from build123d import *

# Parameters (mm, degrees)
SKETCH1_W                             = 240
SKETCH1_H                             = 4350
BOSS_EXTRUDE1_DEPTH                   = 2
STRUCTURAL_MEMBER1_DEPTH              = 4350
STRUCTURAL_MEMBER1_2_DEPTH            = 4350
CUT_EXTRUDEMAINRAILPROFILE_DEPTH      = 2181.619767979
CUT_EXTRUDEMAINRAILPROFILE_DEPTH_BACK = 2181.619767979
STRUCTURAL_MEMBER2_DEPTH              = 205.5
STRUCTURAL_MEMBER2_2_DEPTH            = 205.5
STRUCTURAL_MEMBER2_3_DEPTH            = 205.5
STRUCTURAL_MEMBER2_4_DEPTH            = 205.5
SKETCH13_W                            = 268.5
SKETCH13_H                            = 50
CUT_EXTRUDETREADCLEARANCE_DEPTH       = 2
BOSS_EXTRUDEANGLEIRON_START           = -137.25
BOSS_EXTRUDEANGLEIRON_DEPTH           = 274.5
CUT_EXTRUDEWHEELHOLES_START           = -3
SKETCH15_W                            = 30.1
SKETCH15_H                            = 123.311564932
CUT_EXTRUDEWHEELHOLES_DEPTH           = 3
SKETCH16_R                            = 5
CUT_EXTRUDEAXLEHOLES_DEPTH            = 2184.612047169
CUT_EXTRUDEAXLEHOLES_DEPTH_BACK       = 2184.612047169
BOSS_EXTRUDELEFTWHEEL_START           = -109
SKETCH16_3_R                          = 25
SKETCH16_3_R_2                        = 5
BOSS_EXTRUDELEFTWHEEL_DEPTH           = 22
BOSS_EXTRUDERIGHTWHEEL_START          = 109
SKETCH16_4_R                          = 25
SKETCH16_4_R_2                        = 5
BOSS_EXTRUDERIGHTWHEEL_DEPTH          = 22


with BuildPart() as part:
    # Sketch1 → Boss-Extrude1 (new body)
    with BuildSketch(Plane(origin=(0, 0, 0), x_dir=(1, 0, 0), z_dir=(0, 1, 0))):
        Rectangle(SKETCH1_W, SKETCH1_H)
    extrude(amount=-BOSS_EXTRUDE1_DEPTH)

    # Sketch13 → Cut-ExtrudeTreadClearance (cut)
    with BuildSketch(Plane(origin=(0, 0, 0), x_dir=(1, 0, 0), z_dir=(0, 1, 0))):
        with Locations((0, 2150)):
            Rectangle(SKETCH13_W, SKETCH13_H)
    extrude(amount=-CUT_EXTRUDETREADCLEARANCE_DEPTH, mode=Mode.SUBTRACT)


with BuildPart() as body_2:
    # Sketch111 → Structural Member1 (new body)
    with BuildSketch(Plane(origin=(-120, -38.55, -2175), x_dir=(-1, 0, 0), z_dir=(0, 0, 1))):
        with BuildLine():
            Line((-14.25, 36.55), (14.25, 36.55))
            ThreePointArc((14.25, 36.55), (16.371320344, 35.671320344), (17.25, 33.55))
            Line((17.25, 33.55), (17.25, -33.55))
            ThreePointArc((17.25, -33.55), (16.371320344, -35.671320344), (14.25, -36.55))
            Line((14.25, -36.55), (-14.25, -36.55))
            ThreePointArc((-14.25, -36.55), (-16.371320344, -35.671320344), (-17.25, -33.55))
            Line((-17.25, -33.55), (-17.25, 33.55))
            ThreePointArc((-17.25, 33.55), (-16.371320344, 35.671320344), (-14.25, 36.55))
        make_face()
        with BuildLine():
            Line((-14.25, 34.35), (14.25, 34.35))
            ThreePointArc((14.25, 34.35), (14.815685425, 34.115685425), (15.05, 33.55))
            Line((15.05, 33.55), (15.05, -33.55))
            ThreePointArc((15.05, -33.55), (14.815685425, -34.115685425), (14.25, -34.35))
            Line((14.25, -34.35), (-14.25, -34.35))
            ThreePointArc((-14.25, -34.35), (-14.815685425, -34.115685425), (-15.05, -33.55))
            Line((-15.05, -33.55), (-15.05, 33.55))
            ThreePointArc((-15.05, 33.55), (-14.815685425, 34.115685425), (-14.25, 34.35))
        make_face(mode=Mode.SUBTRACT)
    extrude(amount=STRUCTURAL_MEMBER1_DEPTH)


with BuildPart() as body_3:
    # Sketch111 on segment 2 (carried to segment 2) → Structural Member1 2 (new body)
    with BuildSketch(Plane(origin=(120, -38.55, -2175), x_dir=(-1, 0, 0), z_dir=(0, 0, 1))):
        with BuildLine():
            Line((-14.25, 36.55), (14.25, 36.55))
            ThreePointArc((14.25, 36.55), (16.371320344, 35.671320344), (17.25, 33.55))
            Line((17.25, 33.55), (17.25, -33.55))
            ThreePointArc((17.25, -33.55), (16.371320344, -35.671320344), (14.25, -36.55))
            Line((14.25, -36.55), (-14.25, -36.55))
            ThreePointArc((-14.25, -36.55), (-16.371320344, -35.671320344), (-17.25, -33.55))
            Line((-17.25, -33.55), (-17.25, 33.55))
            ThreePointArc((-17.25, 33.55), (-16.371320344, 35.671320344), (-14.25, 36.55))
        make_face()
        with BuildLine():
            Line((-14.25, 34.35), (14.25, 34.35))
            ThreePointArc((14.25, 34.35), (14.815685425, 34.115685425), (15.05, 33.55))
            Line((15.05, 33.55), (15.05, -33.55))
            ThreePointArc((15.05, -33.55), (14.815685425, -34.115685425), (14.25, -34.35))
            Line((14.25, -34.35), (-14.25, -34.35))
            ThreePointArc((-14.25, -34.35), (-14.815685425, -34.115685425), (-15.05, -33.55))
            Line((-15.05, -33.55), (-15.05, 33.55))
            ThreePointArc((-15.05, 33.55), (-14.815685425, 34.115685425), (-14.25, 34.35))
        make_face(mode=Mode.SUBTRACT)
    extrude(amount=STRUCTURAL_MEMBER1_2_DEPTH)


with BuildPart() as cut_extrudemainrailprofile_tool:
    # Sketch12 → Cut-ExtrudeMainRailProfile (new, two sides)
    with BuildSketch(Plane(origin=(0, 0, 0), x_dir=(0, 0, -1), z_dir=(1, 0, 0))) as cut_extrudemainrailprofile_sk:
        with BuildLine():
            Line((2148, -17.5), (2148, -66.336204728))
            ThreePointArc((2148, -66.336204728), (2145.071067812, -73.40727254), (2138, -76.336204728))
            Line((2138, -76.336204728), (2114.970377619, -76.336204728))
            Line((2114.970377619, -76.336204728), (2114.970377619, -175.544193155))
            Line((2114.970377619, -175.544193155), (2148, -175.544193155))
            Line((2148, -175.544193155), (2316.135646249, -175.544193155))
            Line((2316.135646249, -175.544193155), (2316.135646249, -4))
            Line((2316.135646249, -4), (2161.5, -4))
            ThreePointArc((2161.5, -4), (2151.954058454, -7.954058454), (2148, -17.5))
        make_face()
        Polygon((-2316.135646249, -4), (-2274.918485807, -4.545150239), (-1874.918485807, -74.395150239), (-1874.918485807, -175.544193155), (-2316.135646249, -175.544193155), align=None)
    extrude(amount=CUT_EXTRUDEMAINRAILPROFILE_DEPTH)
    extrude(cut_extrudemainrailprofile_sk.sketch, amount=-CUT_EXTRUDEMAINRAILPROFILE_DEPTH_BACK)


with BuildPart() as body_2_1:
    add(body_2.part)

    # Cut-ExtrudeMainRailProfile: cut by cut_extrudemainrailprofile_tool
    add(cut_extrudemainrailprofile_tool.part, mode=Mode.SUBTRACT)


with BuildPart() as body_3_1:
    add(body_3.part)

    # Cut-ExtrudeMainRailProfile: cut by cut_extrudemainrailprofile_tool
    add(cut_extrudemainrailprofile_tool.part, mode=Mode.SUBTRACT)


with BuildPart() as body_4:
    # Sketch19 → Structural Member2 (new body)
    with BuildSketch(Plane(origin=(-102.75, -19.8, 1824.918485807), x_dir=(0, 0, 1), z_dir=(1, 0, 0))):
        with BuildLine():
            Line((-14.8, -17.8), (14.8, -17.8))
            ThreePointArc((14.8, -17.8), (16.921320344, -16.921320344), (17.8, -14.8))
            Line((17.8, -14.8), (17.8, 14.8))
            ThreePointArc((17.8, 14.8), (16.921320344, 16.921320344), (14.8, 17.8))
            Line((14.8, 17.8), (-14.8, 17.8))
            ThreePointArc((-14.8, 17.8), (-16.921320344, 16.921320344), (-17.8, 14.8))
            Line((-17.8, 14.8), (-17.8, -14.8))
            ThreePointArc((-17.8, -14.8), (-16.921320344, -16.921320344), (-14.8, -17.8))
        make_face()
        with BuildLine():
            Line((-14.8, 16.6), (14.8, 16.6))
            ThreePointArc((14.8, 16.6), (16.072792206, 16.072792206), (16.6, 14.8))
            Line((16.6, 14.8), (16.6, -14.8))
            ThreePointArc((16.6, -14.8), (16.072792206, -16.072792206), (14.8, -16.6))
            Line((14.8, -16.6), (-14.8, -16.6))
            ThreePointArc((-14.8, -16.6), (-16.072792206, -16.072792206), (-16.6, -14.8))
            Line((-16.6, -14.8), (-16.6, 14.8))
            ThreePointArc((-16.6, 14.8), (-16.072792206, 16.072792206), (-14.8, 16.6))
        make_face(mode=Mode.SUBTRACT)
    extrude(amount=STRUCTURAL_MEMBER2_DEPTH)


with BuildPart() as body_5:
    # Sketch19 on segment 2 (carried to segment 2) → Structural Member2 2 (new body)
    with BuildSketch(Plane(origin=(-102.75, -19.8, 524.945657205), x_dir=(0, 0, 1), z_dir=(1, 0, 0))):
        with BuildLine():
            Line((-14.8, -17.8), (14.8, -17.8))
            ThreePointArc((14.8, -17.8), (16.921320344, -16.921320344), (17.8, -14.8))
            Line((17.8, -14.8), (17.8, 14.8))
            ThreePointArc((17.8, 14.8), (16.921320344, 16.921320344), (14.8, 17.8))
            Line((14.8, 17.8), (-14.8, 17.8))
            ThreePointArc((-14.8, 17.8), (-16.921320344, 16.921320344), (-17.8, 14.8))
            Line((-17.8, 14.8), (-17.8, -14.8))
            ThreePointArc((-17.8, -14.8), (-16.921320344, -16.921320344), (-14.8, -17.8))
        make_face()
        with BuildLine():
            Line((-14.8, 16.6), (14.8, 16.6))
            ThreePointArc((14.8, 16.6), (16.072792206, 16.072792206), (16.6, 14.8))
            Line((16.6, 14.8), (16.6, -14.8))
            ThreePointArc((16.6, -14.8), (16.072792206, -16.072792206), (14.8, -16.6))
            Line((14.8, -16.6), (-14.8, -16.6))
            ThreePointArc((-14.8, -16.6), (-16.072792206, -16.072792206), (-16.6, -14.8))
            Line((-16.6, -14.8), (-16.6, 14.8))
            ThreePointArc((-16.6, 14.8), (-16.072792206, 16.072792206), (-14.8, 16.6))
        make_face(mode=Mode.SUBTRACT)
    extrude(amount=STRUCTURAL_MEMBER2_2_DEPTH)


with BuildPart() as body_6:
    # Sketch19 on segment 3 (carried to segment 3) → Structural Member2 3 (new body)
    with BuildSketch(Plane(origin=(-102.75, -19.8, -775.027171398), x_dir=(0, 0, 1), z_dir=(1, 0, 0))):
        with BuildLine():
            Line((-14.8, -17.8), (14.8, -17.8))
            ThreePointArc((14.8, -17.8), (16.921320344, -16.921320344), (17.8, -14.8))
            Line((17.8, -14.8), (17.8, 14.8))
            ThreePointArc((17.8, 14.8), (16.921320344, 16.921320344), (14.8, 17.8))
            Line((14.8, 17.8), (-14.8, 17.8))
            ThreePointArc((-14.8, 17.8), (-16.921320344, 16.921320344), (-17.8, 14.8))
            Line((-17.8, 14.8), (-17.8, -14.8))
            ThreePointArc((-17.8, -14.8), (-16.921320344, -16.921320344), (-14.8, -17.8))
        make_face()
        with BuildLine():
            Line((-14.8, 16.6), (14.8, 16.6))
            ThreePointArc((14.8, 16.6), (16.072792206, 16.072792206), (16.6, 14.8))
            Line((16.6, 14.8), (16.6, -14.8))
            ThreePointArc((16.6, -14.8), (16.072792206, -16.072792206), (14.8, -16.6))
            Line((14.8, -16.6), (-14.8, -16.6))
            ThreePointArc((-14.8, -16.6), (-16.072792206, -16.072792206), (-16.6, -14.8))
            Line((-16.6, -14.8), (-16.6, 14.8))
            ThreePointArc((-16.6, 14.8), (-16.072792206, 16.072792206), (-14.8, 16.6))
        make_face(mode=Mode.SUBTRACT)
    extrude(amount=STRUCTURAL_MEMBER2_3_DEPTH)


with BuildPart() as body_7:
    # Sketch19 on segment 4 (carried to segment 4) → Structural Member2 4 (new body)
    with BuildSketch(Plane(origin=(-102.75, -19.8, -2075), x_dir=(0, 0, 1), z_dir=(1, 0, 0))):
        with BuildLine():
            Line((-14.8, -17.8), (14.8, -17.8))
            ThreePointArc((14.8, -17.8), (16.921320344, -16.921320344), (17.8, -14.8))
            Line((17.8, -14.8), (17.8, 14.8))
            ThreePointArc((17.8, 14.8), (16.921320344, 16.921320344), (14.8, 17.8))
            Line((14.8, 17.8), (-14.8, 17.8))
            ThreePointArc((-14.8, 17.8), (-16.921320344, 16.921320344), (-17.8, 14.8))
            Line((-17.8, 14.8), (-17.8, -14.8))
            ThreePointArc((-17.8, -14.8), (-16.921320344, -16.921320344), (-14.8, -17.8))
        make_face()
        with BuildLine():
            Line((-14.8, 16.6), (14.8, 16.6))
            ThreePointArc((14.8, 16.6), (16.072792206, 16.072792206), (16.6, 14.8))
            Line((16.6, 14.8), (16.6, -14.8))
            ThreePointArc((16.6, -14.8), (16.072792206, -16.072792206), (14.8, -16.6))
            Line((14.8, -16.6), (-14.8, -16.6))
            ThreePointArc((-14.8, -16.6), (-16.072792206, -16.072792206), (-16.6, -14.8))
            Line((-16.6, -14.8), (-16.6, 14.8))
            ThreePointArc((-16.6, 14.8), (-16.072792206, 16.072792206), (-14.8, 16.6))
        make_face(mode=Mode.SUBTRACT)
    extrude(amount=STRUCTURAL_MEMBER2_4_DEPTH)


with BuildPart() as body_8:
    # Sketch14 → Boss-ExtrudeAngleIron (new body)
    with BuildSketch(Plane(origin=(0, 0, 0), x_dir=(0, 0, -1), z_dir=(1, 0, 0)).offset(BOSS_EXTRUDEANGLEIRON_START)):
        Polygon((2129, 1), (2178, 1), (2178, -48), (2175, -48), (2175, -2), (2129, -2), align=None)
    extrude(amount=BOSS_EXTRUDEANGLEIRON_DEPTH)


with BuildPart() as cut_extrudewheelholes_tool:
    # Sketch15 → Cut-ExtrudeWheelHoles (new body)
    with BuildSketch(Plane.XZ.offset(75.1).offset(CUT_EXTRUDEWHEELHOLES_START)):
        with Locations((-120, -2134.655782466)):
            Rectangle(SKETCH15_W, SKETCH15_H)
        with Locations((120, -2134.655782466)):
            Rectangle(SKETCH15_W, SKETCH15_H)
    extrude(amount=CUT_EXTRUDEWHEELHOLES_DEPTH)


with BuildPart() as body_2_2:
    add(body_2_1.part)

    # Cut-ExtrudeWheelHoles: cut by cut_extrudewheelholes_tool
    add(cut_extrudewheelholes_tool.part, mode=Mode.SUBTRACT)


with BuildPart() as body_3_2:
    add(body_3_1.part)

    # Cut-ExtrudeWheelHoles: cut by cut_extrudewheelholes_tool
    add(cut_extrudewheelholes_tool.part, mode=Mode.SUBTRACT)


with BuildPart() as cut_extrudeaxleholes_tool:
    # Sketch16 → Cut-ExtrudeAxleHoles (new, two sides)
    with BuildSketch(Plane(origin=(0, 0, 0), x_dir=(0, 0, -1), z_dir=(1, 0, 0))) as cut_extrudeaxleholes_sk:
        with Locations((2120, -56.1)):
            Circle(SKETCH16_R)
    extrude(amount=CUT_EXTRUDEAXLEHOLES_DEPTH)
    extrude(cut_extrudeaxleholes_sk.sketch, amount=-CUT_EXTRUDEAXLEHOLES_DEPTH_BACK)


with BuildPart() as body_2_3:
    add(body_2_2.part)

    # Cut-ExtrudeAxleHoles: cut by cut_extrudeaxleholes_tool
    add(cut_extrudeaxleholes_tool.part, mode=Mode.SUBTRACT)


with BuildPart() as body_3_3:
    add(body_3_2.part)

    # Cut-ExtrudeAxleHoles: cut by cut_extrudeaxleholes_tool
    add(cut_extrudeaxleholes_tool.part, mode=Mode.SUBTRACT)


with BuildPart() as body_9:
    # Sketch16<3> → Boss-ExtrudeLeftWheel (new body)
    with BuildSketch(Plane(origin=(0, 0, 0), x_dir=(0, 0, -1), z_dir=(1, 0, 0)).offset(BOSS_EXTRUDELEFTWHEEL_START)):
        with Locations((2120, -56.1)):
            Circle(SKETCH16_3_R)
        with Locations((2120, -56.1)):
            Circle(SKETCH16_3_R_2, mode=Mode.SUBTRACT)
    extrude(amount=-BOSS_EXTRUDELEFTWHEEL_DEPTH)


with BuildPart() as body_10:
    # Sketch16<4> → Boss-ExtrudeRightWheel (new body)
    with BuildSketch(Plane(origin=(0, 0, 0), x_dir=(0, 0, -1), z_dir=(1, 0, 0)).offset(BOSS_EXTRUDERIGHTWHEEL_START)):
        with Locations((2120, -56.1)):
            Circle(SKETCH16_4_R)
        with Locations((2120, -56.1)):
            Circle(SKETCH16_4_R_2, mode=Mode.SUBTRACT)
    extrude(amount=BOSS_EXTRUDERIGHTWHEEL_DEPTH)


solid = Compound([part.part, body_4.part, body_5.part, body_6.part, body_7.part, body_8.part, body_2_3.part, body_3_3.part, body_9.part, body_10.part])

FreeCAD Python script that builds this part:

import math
import FreeCAD as App
import Part
import Sketcher

V = App.Vector

doc = App.newDocument("Part")
body = doc.addObject("PartDesign::Body", "Body")

# Sketch on XZ plane
sketch1 = body.newObject("Sketcher::SketchObject", "Sketch")
sketch1.AttachmentSupport = (doc.getObject("XZ_Plane"), [""])
sketch1.MapMode = "FlatFace"
sketch1.addGeometry([
    Part.LineSegment(V(-120, -2175, 0), V(-120, 2175, 0)),
    Part.LineSegment(V(-120, 2175, 0), V(120, 2175, 0)),
    Part.LineSegment(V(120, 2175, 0), V(120, -2175, 0)),
    Part.LineSegment(V(120, -2175, 0), V(-120, -2175, 0)),
], False)
sketch1.addConstraint([
    Sketcher.Constraint("Coincident", 0, 2, 1, 1),
    Sketcher.Constraint("Coincident", 1, 2, 2, 1),
    Sketcher.Constraint("Coincident", 2, 2, 3, 1),
    Sketcher.Constraint("Coincident", 3, 2, 0, 1),
    Sketcher.Constraint("Vertical", 0),
    Sketcher.Constraint("Horizontal", 1),
    Sketcher.Constraint("Vertical", 2),
    Sketcher.Constraint("Horizontal", 3),
    Sketcher.Constraint("Symmetric", 0, 2, 2, 2, -1, 1),
    Sketcher.Constraint("DistanceX", 1, 1, 1, 2, 240.0),
    Sketcher.Constraint("DistanceY", 0, 1, 0, 2, 4350.0),
])
pad1 = body.newObject("PartDesign::Pad", "Pad")
pad1.Profile = sketch1
pad1.Length = 2

# Sketch on XZ plane
sketch2 = body.newObject("Sketcher::SketchObject", "Sketch001")
sketch2.AttachmentSupport = (doc.getObject("XZ_Plane"), [""])
sketch2.MapMode = "FlatFace"
sketch2.addGeometry([
    Part.LineSegment(V(-134.25, -2175, 0), V(-134.25, -2125, 0)),
    Part.LineSegment(V(-134.25, -2125, 0), V(134.25, -2125, 0)),
    Part.LineSegment(V(134.25, -2125, 0), V(134.25, -2175, 0)),
    Part.LineSegment(V(134.25, -2175, 0), V(-134.25, -2175, 0)),
], False)
sketch2.addConstraint([
    Sketcher.Constraint("Coincident", 0, 2, 1, 1),
    Sketcher.Constraint("Coincident", 1, 2, 2, 1),
    Sketcher.Constraint("Coincident", 2, 2, 3, 1),
    Sketcher.Constraint("Coincident", 3, 2, 0, 1),
    Sketcher.Constraint("Vertical", 0),
    Sketcher.Constraint("Horizontal", 1),
    Sketcher.Constraint("Vertical", 2),
    Sketcher.Constraint("Horizontal", 3),
    Sketcher.Constraint("DistanceY", 0, 1, 0, 2, 50.0),
    Sketcher.Constraint("DistanceX", 1, 1, 1, 2, 268.5),
    Sketcher.Constraint("DistanceY", 0, 2, -1, 1, 2125.0),
    Sketcher.Constraint("DistanceX", 0, 2, -1, 1, 134.25),
])
pocket1 = body.newObject("PartDesign::Pocket", "Pocket")
pocket1.Profile = sketch2
pocket1.Length = 2
pocket1.Reversed = True
body2 = doc.addObject("PartDesign::Body", "Body001")

# Sketch on XY plane
sketch3 = body2.newObject("Sketcher::SketchObject", "Sketch002")
sketch3.AttachmentSupport = (doc.getObject("XY_Plane001"), [""])
sketch3.MapMode = "FlatFace"
sketch3.AttachmentOffset = App.Placement(V(0, 0, -2175), App.Rotation())
sketch3.addGeometry([
    Part.LineSegment(V(-134.25, -75.1, 0), V(-105.75, -75.1, 0)),  # 0
    Part.ArcOfCircle(Part.Circle(V(-105.75, -72.1, 0), V(0, 0, 1), 3), math.radians(-90), math.radians(0)),  # 1
    Part.LineSegment(V(-102.75, -72.1, 0), V(-102.75, -5, 0)),  # 2
    Part.ArcOfCircle(Part.Circle(V(-105.75, -5, 0), V(0, 0, 1), 3), math.radians(0), math.radians(90)),  # 3
    Part.LineSegment(V(-105.75, -2, 0), V(-134.25, -2, 0)),  # 4
    Part.ArcOfCircle(Part.Circle(V(-134.25, -5, 0), V(0, 0, 1), 3), math.radians(90), math.radians(180)),  # 5
    Part.LineSegment(V(-137.25, -5, 0), V(-137.25, -72.1, 0)),  # 6
    Part.ArcOfCircle(Part.Circle(V(-134.25, -72.1, 0), V(0, 0, 1), 3), math.radians(180), math.radians(270)),  # 7
    Part.LineSegment(V(-105.75, -72.9, 0), V(-134.25, -72.9, 0)),  # 8
    Part.ArcOfCircle(Part.Circle(V(-134.25, -72.1, 0), V(0, 0, 1), 0.8), math.radians(180), math.radians(270)),  # 9
    Part.LineSegment(V(-135.05, -72.1, 0), V(-135.05, -5, 0)),  # 10
    Part.ArcOfCircle(Part.Circle(V(-134.25, -5, 0), V(0, 0, 1), 0.8), math.radians(90), math.radians(180)),  # 11
    Part.LineSegment(V(-134.25, -4.2, 0), V(-105.75, -4.2, 0)),  # 12
    Part.ArcOfCircle(Part.Circle(V(-105.75, -5, 0), V(0, 0, 1), 0.8), math.radians(0), math.radians(90)),  # 13
    Part.LineSegment(V(-104.95, -5, 0), V(-104.95, -72.1, 0)),  # 14
    Part.ArcOfCircle(Part.Circle(V(-105.75, -72.1, 0), V(0, 0, 1), 0.8), math.radians(-90), math.radians(0)),  # 15
], False)
sketch3.addConstraint([
    Sketcher.Constraint("Tangent", 0, 2, 1, 1),
    Sketcher.Constraint("Tangent", 1, 2, 2, 1),
    Sketcher.Constraint("Tangent", 2, 2, 3, 1),
    Sketcher.Constraint("Tangent", 3, 2, 4, 1),
    Sketcher.Constraint("Tangent", 4, 2, 5, 1),
    Sketcher.Constraint("Tangent", 5, 2, 6, 1),
    Sketcher.Constraint("Tangent", 6, 2, 7, 1),
    Sketcher.Constraint("Tangent", 7, 2, 0, 1),
    Sketcher.Constraint("Tangent", 8, 2, 9, 2),
    Sketcher.Constraint("Tangent", 9, 1, 10, 1),
    Sketcher.Constraint("Tangent", 10, 2, 11, 2),
    Sketcher.Constraint("Tangent", 11, 1, 12, 1),
    Sketcher.Constraint("Tangent", 12, 2, 13, 2),
    Sketcher.Constraint("Tangent", 13, 1, 14, 1),
    Sketcher.Constraint("Tangent", 14, 2, 15, 2),
    Sketcher.Constraint("Tangent", 15, 1, 8, 1),
    Sketcher.Constraint("Horizontal", 0),
    Sketcher.Constraint("Vertical", 2),
    Sketcher.Constraint("Horizontal", 4),
    Sketcher.Constraint("Vertical", 6),
    Sketcher.Constraint("Horizontal", 8),
    Sketcher.Constraint("Vertical", 10),
    Sketcher.Constraint("Horizontal", 12),
    Sketcher.Constraint("Vertical", 14),
    Sketcher.Constraint("Coincident", 9, 3, 7, 3),
    Sketcher.Constraint("Coincident", 11, 3, 5, 3),
    Sketcher.Constraint("Coincident", 13, 3, 3, 3),
    Sketcher.Constraint("Equal", 1, 3),
    Sketcher.Constraint("Equal", 3, 5),
    Sketcher.Constraint("Equal", 5, 7),
    Sketcher.Constraint("Equal", 13, 15),
    Sketcher.Constraint("Radius", 1, 3.0),
    Sketcher.Constraint("Radius", 9, 0.8),
    Sketcher.Constraint("DistanceX", 0, 1, 0, 2, 28.5),
    Sketcher.Constraint("DistanceY", 2, 1, 2, 2, 67.1),
    Sketcher.Constraint("DistanceY", 3, 3, -1, 1, 5.0),
    Sketcher.Constraint("DistanceX", 1, 3, -1, 1, 105.75),
])
pad2 = body2.newObject("PartDesign::Pad", "Pad001")
pad2.Profile = sketch3
pad2.Length = 4350
body3 = doc.addObject("PartDesign::Body", "Body002")

# Sketch on XY plane
sketch4 = body3.newObject("Sketcher::SketchObject", "Sketch003")
sketch4.AttachmentSupport = (doc.getObject("XY_Plane002"), [""])
sketch4.MapMode = "FlatFace"
sketch4.AttachmentOffset = App.Placement(V(0, 0, -2175), App.Rotation())
sketch4.addGeometry([
    Part.LineSegment(V(105.75, -75.1, 0), V(134.25, -75.1, 0)),  # 0
    Part.ArcOfCircle(Part.Circle(V(134.25, -72.1, 0), V(0, 0, 1), 3), math.radians(-90), math.radians(0)),  # 1
    Part.LineSegment(V(137.25, -72.1, 0), V(137.25, -5, 0)),  # 2
    Part.ArcOfCircle(Part.Circle(V(134.25, -5, 0), V(0, 0, 1), 3), math.radians(0), math.radians(90)),  # 3
    Part.LineSegment(V(134.25, -2, 0), V(105.75, -2, 0)),  # 4
    Part.ArcOfCircle(Part.Circle(V(105.75, -5, 0), V(0, 0, 1), 3), math.radians(90), math.radians(180)),  # 5
    Part.LineSegment(V(102.75, -5, 0), V(102.75, -72.1, 0)),  # 6
    Part.ArcOfCircle(Part.Circle(V(105.75, -72.1, 0), V(0, 0, 1), 3), math.radians(180), math.radians(270)),  # 7
    Part.LineSegment(V(134.25, -72.9, 0), V(105.75, -72.9, 0)),  # 8
    Part.ArcOfCircle(Part.Circle(V(105.75, -72.1, 0), V(0, 0, 1), 0.8), math.radians(180), math.radians(270)),  # 9
    Part.LineSegment(V(104.95, -72.1, 0), V(104.95, -5, 0)),  # 10
    Part.ArcOfCircle(Part.Circle(V(105.75, -5, 0), V(0, 0, 1), 0.8), math.radians(90), math.radians(180)),  # 11
    Part.LineSegment(V(105.75, -4.2, 0), V(134.25, -4.2, 0)),  # 12
    Part.ArcOfCircle(Part.Circle(V(134.25, -5, 0), V(0, 0, 1), 0.8), math.radians(0), math.radians(90)),  # 13
    Part.LineSegment(V(135.05, -5, 0), V(135.05, -72.1, 0)),  # 14
    Part.ArcOfCircle(Part.Circle(V(134.25, -72.1, 0), V(0, 0, 1), 0.8), math.radians(-90), math.radians(0)),  # 15
], False)
sketch4.addConstraint([
    Sketcher.Constraint("Tangent", 0, 2, 1, 1),
    Sketcher.Constraint("Tangent", 1, 2, 2, 1),
    Sketcher.Constraint("Tangent", 2, 2, 3, 1),
    Sketcher.Constraint("Tangent", 3, 2, 4, 1),
    Sketcher.Constraint("Tangent", 4, 2, 5, 1),
    Sketcher.Constraint("Tangent", 5, 2, 6, 1),
    Sketcher.Constraint("Tangent", 6, 2, 7, 1),
    Sketcher.Constraint("Tangent", 7, 2, 0, 1),
    Sketcher.Constraint("Tangent", 8, 2, 9, 2),
    Sketcher.Constraint("Tangent", 9, 1, 10, 1),
    Sketcher.Constraint("Tangent", 10, 2, 11, 2),
    Sketcher.Constraint("Tangent", 11, 1, 12, 1),
    Sketcher.Constraint("Tangent", 12, 2, 13, 2),
    Sketcher.Constraint("Tangent", 13, 1, 14, 1),
    Sketcher.Constraint("Tangent", 14, 2, 15, 2),
    Sketcher.Constraint("Tangent", 15, 1, 8, 1),
    Sketcher.Constraint("Horizontal", 0),
    Sketcher.Constraint("Vertical", 2),
    Sketcher.Constraint("Horizontal", 4),
    Sketcher.Constraint("Vertical", 6),
    Sketcher.Constraint("Horizontal", 8),
    Sketcher.Constraint("Vertical", 10),
    Sketcher.Constraint("Horizontal", 12),
    Sketcher.Constraint("Vertical", 14),
    Sketcher.Constraint("Coincident", 9, 3, 7, 3),
    Sketcher.Constraint("Coincident", 11, 3, 5, 3),
    Sketcher.Constraint("Coincident", 13, 3, 3, 3),
    Sketcher.Constraint("Equal", 1, 3),
    Sketcher.Constraint("Equal", 3, 5),
    Sketcher.Constraint("Equal", 5, 7),
    Sketcher.Constraint("Equal", 13, 15),
    Sketcher.Constraint("Radius", 1, 3.0),
    Sketcher.Constraint("Radius", 9, 0.8),
    Sketcher.Constraint("DistanceX", 0, 1, 0, 2, 28.5),
    Sketcher.Constraint("DistanceY", 2, 1, 2, 2, 67.1),
    Sketcher.Constraint("DistanceY", 3, 3, -1, 1, 5.0),
    Sketcher.Constraint("DistanceX", -1, 1, 1, 3, 134.25),
])
pad3 = body3.newObject("PartDesign::Pad", "Pad002")
pad3.Profile = sketch4
pad3.Length = 4350
body4 = doc.addObject("PartDesign::Body", "Body003")
body4.AllowCompound = True

# Sketch on YZ plane
sketch5 = body4.newObject("Sketcher::SketchObject", "Sketch004")
sketch5.AttachmentSupport = (doc.getObject("YZ_Plane003"), [""])
sketch5.MapMode = "FlatFace"
sketch5.addGeometry([
    Part.LineSegment(V(-17.5, -2148, 0), V(-66.336205, -2148, 0)),  # 0
    Part.ArcOfCircle(Part.Circle(V(-66.336205, -2138, 0), V(0, 0, 1), 10), math.radians(180), math.radians(270)),  # 1
    Part.LineSegment(V(-76.336205, -2138, 0), V(-76.336205, -2114.970378, 0)),  # 2
    Part.LineSegment(V(-76.336205, -2114.970378, 0), V(-175.544193, -2114.970378, 0)),  # 3
    Part.LineSegment(V(-175.544193, -2114.970378, 0), V(-175.544193, -2316.135646, 0)),  # 4
    Part.LineSegment(V(-175.544193, -2316.135646, 0), V(-4, -2316.135646, 0)),  # 5
    Part.LineSegment(V(-4, -2316.135646, 0), V(-4, -2161.5, 0)),  # 6
    Part.ArcOfCircle(Part.Circle(V(-17.5, -2161.5, 0), V(0, 0, 1), 13.5), math.radians(0), math.radians(90)),  # 7
    Part.LineSegment(V(-4.54515, 2274.918486, 0), V(-4, 2316.135646, 0)),  # 8
    Part.LineSegment(V(-4, 2316.135646, 0), V(-175.544193, 2316.135646, 0)),  # 9
    Part.LineSegment(V(-175.544193, 2316.135646, 0), V(-175.544193, 1874.918486, 0)),  # 10
    Part.LineSegment(V(-175.544193, 1874.918486, 0), V(-74.39515, 1874.918486, 0)),  # 11
    Part.LineSegment(V(-74.39515, 1874.918486, 0), V(-4.54515, 2274.918486, 0)),  # 12
], False)
sketch5.addConstraint([
    Sketcher.Constraint("Tangent", 0, 2, 1, 2),
    Sketcher.Constraint("Tangent", 1, 1, 2, 1),
    Sketcher.Constraint("Coincident", 2, 2, 3, 1),
    Sketcher.Constraint("Coincident", 3, 2, 4, 1),
    Sketcher.Constraint("Coincident", 4, 2, 5, 1),
    Sketcher.Constraint("Coincident", 5, 2, 6, 1),
    Sketcher.Constraint("Tangent", 6, 2, 7, 1),
    Sketcher.Constraint("Tangent", 7, 2, 0, 1),
    Sketcher.Constraint("Coincident", 8, 2, 9, 1),
    Sketcher.Constraint("Coincident", 9, 2, 10, 1),
    Sketcher.Constraint("Coincident", 10, 2, 11, 1),
    Sketcher.Constraint("Coincident", 11, 2, 12, 1),
    Sketcher.Constraint("Coincident", 12, 2, 8, 1),
    Sketcher.Constraint("Horizontal", 0),
    Sketcher.Constraint("Vertical", 2),
    Sketcher.Constraint("Horizontal", 3),
    Sketcher.Constraint("Vertical", 4),
    Sketcher.Constraint("Horizontal", 5),
    Sketcher.Constraint("Vertical", 6),
    Sketcher.Constraint("Horizontal", 9),
    Sketcher.Constraint("Vertical", 10),
    Sketcher.Constraint("Horizontal", 11),
    Sketcher.Constraint("Symmetric", 5, 2, 8, 2, -1),
    Sketcher.Constraint("Vertical", 4, 2, 9, 2),
    Sketcher.Constraint("Radius", 1, 10.0),
    Sketcher.Constraint("Radius", 7, 13.5),
    Sketcher.Constraint("DistanceY", 1, 3, -1, 1, 2138.0),
    Sketcher.Constraint("DistanceX", 5, 2, -1, 1, 4.0),
    Sketcher.Constraint("DistanceY", 11, 2, 12, 2, 400.0),
    Sketcher.Constraint("DistanceX", 11, 2, 12, 2, 69.85),
    Sketcher.Constraint("DistanceX", 3, 2, 3, 1, 99.207988),
    Sketcher.Constraint("DistanceY", 4, 2, 4, 1, 201.165269),
    Sketcher.Constraint("DistanceY", 10, 2, 10, 1, 441.21716),
    Sketcher.Constraint("DistanceX", 0, 2, 0, 1, 48.836205),
    Sketcher.Constraint("DistanceX", 11, 1, 11, 2, 101.149043),
    Sketcher.Constraint("DistanceY", 2, 1, 2, 2, 23.029622),
])
pad4 = body4.newObject("PartDesign::Pad", "Pad003")
pad4.Profile = sketch5
pad4.Type = "TwoLengths"
pad4.Length = 2181.619768
pad4.Length2 = 2181.619768
doc.recompute()

body5 = doc.addObject("PartDesign::Body", "Body004")
body5.BaseFeature = body4
boolean = body2.newObject("PartDesign::Boolean", "Boolean")
boolean.Type = "Cut"
boolean.addObjects([body5])
doc.recompute()

boolean2 = body3.newObject("PartDesign::Boolean", "Boolean001")
boolean2.Type = "Cut"
boolean2.addObjects([body4])
body6 = doc.addObject("PartDesign::Body", "Body005")

# Sketch on YZ plane
sketch6 = body6.newObject("Sketcher::SketchObject", "Sketch005")
sketch6.AttachmentSupport = (doc.getObject("YZ_Plane005"), [""])
sketch6.MapMode = "FlatFace"
sketch6.AttachmentOffset = App.Placement(V(0, 0, -102.75), App.Rotation())
sketch6.addGeometry([
    Part.LineSegment(V(-2, 1810.118486, 0), V(-2, 1839.718486, 0)),  # 0
    Part.ArcOfCircle(Part.Circle(V(-5, 1839.718486, 0), V(0, 0, 1), 3), math.radians(0), math.radians(90)),  # 1
    Part.LineSegment(V(-5, 1842.718486, 0), V(-34.6, 1842.718486, 0)),  # 2
    Part.ArcOfCircle(Part.Circle(V(-34.6, 1839.718486, 0), V(0, 0, 1), 3), math.radians(90), math.radians(180)),  # 3
    Part.LineSegment(V(-37.6, 1839.718486, 0), V(-37.6, 1810.118486, 0)),  # 4
    Part.ArcOfCircle(Part.Circle(V(-34.6, 1810.118486, 0), V(0, 0, 1), 3), math.radians(180), math.radians(270)),  # 5
    Part.LineSegment(V(-34.6, 1807.118486, 0), V(-5, 1807.118486, 0)),  # 6
    Part.ArcOfCircle(Part.Circle(V(-5, 1810.118486, 0), V(0, 0, 1), 3), math.radians(-90), math.radians(0)),  # 7
    Part.ArcOfCircle(Part.Circle(V(-34.6, 1810.118486, 0), V(0, 0, 1), 1.8), math.radians(180), math.radians(270)),  # 8
    Part.LineSegment(V(-36.4, 1810.118486, 0), V(-36.4, 1839.718486, 0)),  # 9
    Part.ArcOfCircle(Part.Circle(V(-34.6, 1839.718486, 0), V(0, 0, 1), 1.8), math.radians(90), math.radians(180)),  # 10
    Part.LineSegment(V(-34.6, 1841.518486, 0), V(-5, 1841.518486, 0)),  # 11
    Part.ArcOfCircle(Part.Circle(V(-5, 1839.718486, 0), V(0, 0, 1), 1.8), math.radians(0), math.radians(90)),  # 12
    Part.LineSegment(V(-3.2, 1839.718486, 0), V(-3.2, 1810.118486, 0)),  # 13
    Part.ArcOfCircle(Part.Circle(V(-5, 1810.118486, 0), V(0, 0, 1), 1.8), math.radians(-90), math.radians(0)),  # 14
    Part.LineSegment(V(-5, 1808.318486, 0), V(-34.6, 1808.318486, 0)),  # 15
], False)
sketch6.addConstraint([
    Sketcher.Constraint("Tangent", 0, 2, 1, 1),
    Sketcher.Constraint("Tangent", 1, 2, 2, 1),
    Sketcher.Constraint("Tangent", 2, 2, 3, 1),
    Sketcher.Constraint("Tangent", 3, 2, 4, 1),
    Sketcher.Constraint("Tangent", 4, 2, 5, 1),
    Sketcher.Constraint("Tangent", 5, 2, 6, 1),
    Sketcher.Constraint("Tangent", 6, 2, 7, 1),
    Sketcher.Constraint("Tangent", 7, 2, 0, 1),
    Sketcher.Constraint("Tangent", 8, 1, 9, 1),
    Sketcher.Constraint("Tangent", 9, 2, 10, 2),
    Sketcher.Constraint("Tangent", 10, 1, 11, 1),
    Sketcher.Constraint("Tangent", 11, 2, 12, 2),
    Sketcher.Constraint("Tangent", 12, 1, 13, 1),
    Sketcher.Constraint("Tangent", 13, 2, 14, 2),
    Sketcher.Constraint("Tangent", 14, 1, 15, 1),
    Sketcher.Constraint("Tangent", 15, 2, 8, 2),
    Sketcher.Constraint("Vertical", 0),
    Sketcher.Constraint("Horizontal", 2),
    Sketcher.Constraint("Vertical", 4),
    Sketcher.Constraint("Horizontal", 6),
    Sketcher.Constraint("Vertical", 9),
    Sketcher.Constraint("Horizontal", 11),
    Sketcher.Constraint("Vertical", 13),
    Sketcher.Constraint("Horizontal", 15),
    Sketcher.Constraint("Coincident", 8, 3, 5, 3),
    Sketcher.Constraint("Coincident", 10, 3, 3, 3),
    Sketcher.Constraint("Coincident", 12, 3, 1, 3),
    Sketcher.Constraint("Equal", 1, 3),
    Sketcher.Constraint("Equal", 3, 5),
    Sketcher.Constraint("Equal", 5, 7),
    Sketcher.Constraint("Equal", 12, 14),
    Sketcher.Constraint("Equal", 15, 0),
    Sketcher.Constraint("Radius", 1, 3.0),
    Sketcher.Constraint("Radius", 8, 1.8),
    Sketcher.Constraint("DistanceX", 2, 2, 2, 1, 29.6),
    Sketcher.Constraint("DistanceX", 1, 3, -1, 1, 5.0),
    Sketcher.Constraint("DistanceY", -1, 1, 1, 3, 1839.718486),
])
pad5 = body6.newObject("PartDesign::Pad", "Pad004")
pad5.Profile = sketch6
pad5.Length = 205.5
body7 = doc.addObject("PartDesign::Body", "Body006")

# Sketch on YZ plane
sketch7 = body7.newObject("Sketcher::SketchObject", "Sketch006")
sketch7.AttachmentSupport = (doc.getObject("YZ_Plane006"), [""])
sketch7.MapMode = "FlatFace"
sketch7.AttachmentOffset = App.Placement(V(0, 0, -102.75), App.Rotation())
sketch7.addGeometry([
    Part.LineSegment(V(-2, 510.145657, 0), V(-2, 539.745657, 0)),  # 0
    Part.ArcOfCircle(Part.Circle(V(-5, 539.745657, 0), V(0, 0, 1), 3), math.radians(0), math.radians(90)),  # 1
    Part.LineSegment(V(-5, 542.745657, 0), V(-34.6, 542.745657, 0)),  # 2
    Part.ArcOfCircle(Part.Circle(V(-34.6, 539.745657, 0), V(0, 0, 1), 3), math.radians(90), math.radians(180)),  # 3
    Part.LineSegment(V(-37.6, 539.745657, 0), V(-37.6, 510.145657, 0)),  # 4
    Part.ArcOfCircle(Part.Circle(V(-34.6, 510.145657, 0), V(0, 0, 1), 3), math.radians(180), math.radians(270)),  # 5
    Part.LineSegment(V(-34.6, 507.145657, 0), V(-5, 507.145657, 0)),  # 6
    Part.ArcOfCircle(Part.Circle(V(-5, 510.145657, 0), V(0, 0, 1), 3), math.radians(-90), math.radians(0)),  # 7
    Part.ArcOfCircle(Part.Circle(V(-34.6, 510.145657, 0), V(0, 0, 1), 1.8), math.radians(180), math.radians(270)),  # 8
    Part.LineSegment(V(-36.4, 510.145657, 0), V(-36.4, 539.745657, 0)),  # 9
    Part.ArcOfCircle(Part.Circle(V(-34.6, 539.745657, 0), V(0, 0, 1), 1.8), math.radians(90), math.radians(180)),  # 10
    Part.LineSegment(V(-34.6, 541.545657, 0), V(-5, 541.545657, 0)),  # 11
    Part.ArcOfCircle(Part.Circle(V(-5, 539.745657, 0), V(0, 0, 1), 1.8), math.radians(0), math.radians(90)),  # 12
    Part.LineSegment(V(-3.2, 539.745657, 0), V(-3.2, 510.145657, 0)),  # 13
    Part.ArcOfCircle(Part.Circle(V(-5, 510.145657, 0), V(0, 0, 1), 1.8), math.radians(-90), math.radians(0)),  # 14
    Part.LineSegment(V(-5, 508.345657, 0), V(-34.6, 508.345657, 0)),  # 15
], False)
sketch7.addConstraint([
    Sketcher.Constraint("Tangent", 0, 2, 1, 1),
    Sketcher.Constraint("Tangent", 1, 2, 2, 1),
    Sketcher.Constraint("Tangent", 2, 2, 3, 1),
    Sketcher.Constraint("Tangent", 3, 2, 4, 1),
    Sketcher.Constraint("Tangent", 4, 2, 5, 1),
    Sketcher.Constraint("Tangent", 5, 2, 6, 1),
    Sketcher.Constraint("Tangent", 6, 2, 7, 1),
    Sketcher.Constraint("Tangent", 7, 2, 0, 1),
    Sketcher.Constraint("Tangent", 8, 1, 9, 1),
    Sketcher.Constraint("Tangent", 9, 2, 10, 2),
    Sketcher.Constraint("Tangent", 10, 1, 11, 1),
    Sketcher.Constraint("Tangent", 11, 2, 12, 2),
    Sketcher.Constraint("Tangent", 12, 1, 13, 1),
    Sketcher.Constraint("Tangent", 13, 2, 14, 2),
    Sketcher.Constraint("Tangent", 14, 1, 15, 1),
    Sketcher.Constraint("Tangent", 15, 2, 8, 2),
    Sketcher.Constraint("Vertical", 0),
    Sketcher.Constraint("Horizontal", 2),
    Sketcher.Constraint("Vertical", 4),
    Sketcher.Constraint("Horizontal", 6),
    Sketcher.Constraint("Vertical", 9),
    Sketcher.Constraint("Horizontal", 11),
    Sketcher.Constraint("Vertical", 13),
    Sketcher.Constraint("Horizontal", 15),
    Sketcher.Constraint("Coincident", 8, 3, 5, 3),
    Sketcher.Constraint("Coincident", 10, 3, 3, 3),
    Sketcher.Constraint("Coincident", 12, 3, 1, 3),
    Sketcher.Constraint("Equal", 1, 3),
    Sketcher.Constraint("Equal", 3, 5),
    Sketcher.Constraint("Equal", 5, 7),
    Sketcher.Constraint("Equal", 12, 14),
    Sketcher.Constraint("Equal", 15, 0),
    Sketcher.Constraint("Radius", 1, 3.0),
    Sketcher.Constraint("Radius", 8, 1.8),
    Sketcher.Constraint("DistanceX", 2, 2, 2, 1, 29.6),
    Sketcher.Constraint("DistanceX", 1, 3, -1, 1, 5.0),
    Sketcher.Constraint("DistanceY", -1, 1, 1, 3, 539.745657),
])
pad6 = body7.newObject("PartDesign::Pad", "Pad005")
pad6.Profile = sketch7
pad6.Length = 205.5
body8 = doc.addObject("PartDesign::Body", "Body007")

# Sketch on YZ plane
sketch8 = body8.newObject("Sketcher::SketchObject", "Sketch007")
sketch8.AttachmentSupport = (doc.getObject("YZ_Plane007"), [""])
sketch8.MapMode = "FlatFace"
sketch8.AttachmentOffset = App.Placement(V(0, 0, -102.75), App.Rotation())
sketch8.addGeometry([
    Part.LineSegment(V(-2, -789.827171, 0), V(-2, -760.227171, 0)),  # 0
    Part.ArcOfCircle(Part.Circle(V(-5, -760.227171, 0), V(0, 0, 1), 3), math.radians(0), math.radians(90)),  # 1
    Part.LineSegment(V(-5, -757.227171, 0), V(-34.6, -757.227171, 0)),  # 2
    Part.ArcOfCircle(Part.Circle(V(-34.6, -760.227171, 0), V(0, 0, 1), 3), math.radians(90), math.radians(180)),  # 3
    Part.LineSegment(V(-37.6, -760.227171, 0), V(-37.6, -789.827171, 0)),  # 4
    Part.ArcOfCircle(Part.Circle(V(-34.6, -789.827171, 0), V(0, 0, 1), 3), math.radians(180), math.radians(270)),  # 5
    Part.LineSegment(V(-34.6, -792.827171, 0), V(-5, -792.827171, 0)),  # 6
    Part.ArcOfCircle(Part.Circle(V(-5, -789.827171, 0), V(0, 0, 1), 3), math.radians(-90), math.radians(0)),  # 7
    Part.ArcOfCircle(Part.Circle(V(-34.6, -789.827171, 0), V(0, 0, 1), 1.8), math.radians(180), math.radians(270)),  # 8
    Part.LineSegment(V(-36.4, -789.827171, 0), V(-36.4, -760.227171, 0)),  # 9
    Part.ArcOfCircle(Part.Circle(V(-34.6, -760.227171, 0), V(0, 0, 1), 1.8), math.radians(90), math.radians(180)),  # 10
    Part.LineSegment(V(-34.6, -758.427171, 0), V(-5, -758.427171, 0)),  # 11
    Part.ArcOfCircle(Part.Circle(V(-5, -760.227171, 0), V(0, 0, 1), 1.8), math.radians(0), math.radians(90)),  # 12
    Part.LineSegment(V(-3.2, -760.227171, 0), V(-3.2, -789.827171, 0)),  # 13
    Part.ArcOfCircle(Part.Circle(V(-5, -789.827171, 0), V(0, 0, 1), 1.8), math.radians(-90), math.radians(0)),  # 14
    Part.LineSegment(V(-5, -791.627171, 0), V(-34.6, -791.627171, 0)),  # 15
], False)
sketch8.addConstraint([
    Sketcher.Constraint("Tangent", 0, 2, 1, 1),
    Sketcher.Constraint("Tangent", 1, 2, 2, 1),
    Sketcher.Constraint("Tangent", 2, 2, 3, 1),
    Sketcher.Constraint("Tangent", 3, 2, 4, 1),
    Sketcher.Constraint("Tangent", 4, 2, 5, 1),
    Sketcher.Constraint("Tangent", 5, 2, 6, 1),
    Sketcher.Constraint("Tangent", 6, 2, 7, 1),
    Sketcher.Constraint("Tangent", 7, 2, 0, 1),
    Sketcher.Constraint("Tangent", 8, 1, 9, 1),
    Sketcher.Constraint("Tangent", 9, 2, 10, 2),
    Sketcher.Constraint("Tangent", 10, 1, 11, 1),
    Sketcher.Constraint("Tangent", 11, 2, 12, 2),
    Sketcher.Constraint("Tangent", 12, 1, 13, 1),
    Sketcher.Constraint("Tangent", 13, 2, 14, 2),
    Sketcher.Constraint("Tangent", 14, 1, 15, 1),
    Sketcher.Constraint("Tangent", 15, 2, 8, 2),
    Sketcher.Constraint("Vertical", 0),
    Sketcher.Constraint("Horizontal", 2),
    Sketcher.Constraint("Vertical", 4),
    Sketcher.Constraint("Horizontal", 6),
    Sketcher.Constraint("Vertical", 9),
    Sketcher.Constraint("Horizontal", 11),
    Sketcher.Constraint("Vertical", 13),
    Sketcher.Constraint("Horizontal", 15),
    Sketcher.Constraint("Coincident", 8, 3, 5, 3),
    Sketcher.Constraint("Coincident", 10, 3, 3, 3),
    Sketcher.Constraint("Coincident", 12, 3, 1, 3),
    Sketcher.Constraint("Equal", 1, 3),
    Sketcher.Constraint("Equal", 3, 5),
    Sketcher.Constraint("Equal", 5, 7),
    Sketcher.Constraint("Equal", 12, 14),
    Sketcher.Constraint("Equal", 15, 0),
    Sketcher.Constraint("Radius", 1, 3.0),
    Sketcher.Constraint("Radius", 8, 1.8),
    Sketcher.Constraint("DistanceX", 2, 2, 2, 1, 29.6),
    Sketcher.Constraint("DistanceX", 1, 3, -1, 1, 5.0),
    Sketcher.Constraint("DistanceY", 1, 3, -1, 1, 760.227171),
])
pad7 = body8.newObject("PartDesign::Pad", "Pad006")
pad7.Profile = sketch8
pad7.Length = 205.5
body9 = doc.addObject("PartDesign::Body", "Body008")

# Sketch on YZ plane
sketch9 = body9.newObject("Sketcher::SketchObject", "Sketch008")
sketch9.AttachmentSupport = (doc.getObject("YZ_Plane008"), [""])
sketch9.MapMode = "FlatFace"
sketch9.AttachmentOffset = App.Placement(V(0, 0, -102.75), App.Rotation())
sketch9.addGeometry([
    Part.LineSegment(V(-2, -2089.8, 0), V(-2, -2060.2, 0)),  # 0
    Part.ArcOfCircle(Part.Circle(V(-5, -2060.2, 0), V(0, 0, 1), 3), math.radians(0), math.radians(90)),  # 1
    Part.LineSegment(V(-5, -2057.2, 0), V(-34.6, -2057.2, 0)),  # 2
    Part.ArcOfCircle(Part.Circle(V(-34.6, -2060.2, 0), V(0, 0, 1), 3), math.radians(90), math.radians(180)),  # 3
    Part.LineSegment(V(-37.6, -2060.2, 0), V(-37.6, -2089.8, 0)),  # 4
    Part.ArcOfCircle(Part.Circle(V(-34.6, -2089.8, 0), V(0, 0, 1), 3), math.radians(180), math.radians(270)),  # 5
    Part.LineSegment(V(-34.6, -2092.8, 0), V(-5, -2092.8, 0)),  # 6
    Part.ArcOfCircle(Part.Circle(V(-5, -2089.8, 0), V(0, 0, 1), 3), math.radians(-90), math.radians(0)),  # 7
    Part.ArcOfCircle(Part.Circle(V(-34.6, -2089.8, 0), V(0, 0, 1), 1.8), math.radians(180), math.radians(270)),  # 8
    Part.LineSegment(V(-36.4, -2089.8, 0), V(-36.4, -2060.2, 0)),  # 9
    Part.ArcOfCircle(Part.Circle(V(-34.6, -2060.2, 0), V(0, 0, 1), 1.8), math.radians(90), math.radians(180)),  # 10
    Part.LineSegment(V(-34.6, -2058.4, 0), V(-5, -2058.4, 0)),  # 11
    Part.ArcOfCircle(Part.Circle(V(-5, -2060.2, 0), V(0, 0, 1), 1.8), math.radians(0), math.radians(90)),  # 12
    Part.LineSegment(V(-3.2, -2060.2, 0), V(-3.2, -2089.8, 0)),  # 13
    Part.ArcOfCircle(Part.Circle(V(-5, -2089.8, 0), V(0, 0, 1), 1.8), math.radians(-90), math.radians(0)),  # 14
    Part.LineSegment(V(-5, -2091.6, 0), V(-34.6, -2091.6, 0)),  # 15
], False)
sketch9.addConstraint([
    Sketcher.Constraint("Tangent", 0, 2, 1, 1),
    Sketcher.Constraint("Tangent", 1, 2, 2, 1),
    Sketcher.Constraint("Tangent", 2, 2, 3, 1),
    Sketcher.Constraint("Tangent", 3, 2, 4, 1),
    Sketcher.Constraint("Tangent", 4, 2, 5, 1),
    Sketcher.Constraint("Tangent", 5, 2, 6, 1),
    Sketcher.Constraint("Tangent", 6, 2, 7, 1),
    Sketcher.Constraint("Tangent", 7, 2, 0, 1),
    Sketcher.Constraint("Tangent", 8, 1, 9, 1),
    Sketcher.Constraint("Tangent", 9, 2, 10, 2),
    Sketcher.Constraint("Tangent", 10, 1, 11, 1),
    Sketcher.Constraint("Tangent", 11, 2, 12, 2),
    Sketcher.Constraint("Tangent", 12, 1, 13, 1),
    Sketcher.Constraint("Tangent", 13, 2, 14, 2),
    Sketcher.Constraint("Tangent", 14, 1, 15, 1),
    Sketcher.Constraint("Tangent", 15, 2, 8, 2),
    Sketcher.Constraint("Vertical", 0),
    Sketcher.Constraint("Horizontal", 2),
    Sketcher.Constraint("Vertical", 4),
    Sketcher.Constraint("Horizontal", 6),
    Sketcher.Constraint("Vertical", 9),
    Sketcher.Constraint("Horizontal", 11),
    Sketcher.Constraint("Vertical", 13),
    Sketcher.Constraint("Horizontal", 15),
    Sketcher.Constraint("Coincident", 8, 3, 5, 3),
    Sketcher.Constraint("Coincident", 10, 3, 3, 3),
    Sketcher.Constraint("Coincident", 12, 3, 1, 3),
    Sketcher.Constraint("Equal", 1, 3),
    Sketcher.Constraint("Equal", 3, 5),
    Sketcher.Constraint("Equal", 5, 7),
    Sketcher.Constraint("Equal", 12, 14),
    Sketcher.Constraint("Equal", 15, 0),
    Sketcher.Constraint("Radius", 1, 3.0),
    Sketcher.Constraint("Radius", 8, 1.8),
    Sketcher.Constraint("DistanceX", 2, 2, 2, 1, 29.6),
    Sketcher.Constraint("DistanceX", 1, 3, -1, 1, 5.0),
    Sketcher.Constraint("DistanceY", 1, 3, -1, 1, 2060.2),
])
pad8 = body9.newObject("PartDesign::Pad", "Pad007")
pad8.Profile = sketch9
pad8.Length = 205.5
body10 = doc.addObject("PartDesign::Body", "Body009")

# Sketch on YZ plane
sketch10 = body10.newObject("Sketcher::SketchObject", "Sketch009")
sketch10.AttachmentSupport = (doc.getObject("YZ_Plane009"), [""])
sketch10.MapMode = "FlatFace"
sketch10.AttachmentOffset = App.Placement(V(0, 0, -137.25), App.Rotation())
sketch10.addGeometry([
    Part.LineSegment(V(1, -2178, 0), V(1, -2129, 0)),  # 0
    Part.LineSegment(V(1, -2129, 0), V(-2, -2129, 0)),  # 1
    Part.LineSegment(V(-2, -2129, 0), V(-2, -2175, 0)),  # 2
    Part.LineSegment(V(-2, -2175, 0), V(-48, -2175, 0)),  # 3
    Part.LineSegment(V(-48, -2175, 0), V(-48, -2178, 0)),  # 4
    Part.LineSegment(V(-48, -2178, 0), V(1, -2178, 0)),  # 5
], False)
sketch10.addConstraint([
    Sketcher.Constraint("Coincident", 0, 2, 1, 1),
    Sketcher.Constraint("Coincident", 1, 2, 2, 1),
    Sketcher.Constraint("Coincident", 2, 2, 3, 1),
    Sketcher.Constraint("Coincident", 3, 2, 4, 1),
    Sketcher.Constraint("Coincident", 4, 2, 5, 1),
    Sketcher.Constraint("Coincident", 5, 2, 0, 1),
    Sketcher.Constraint("Vertical", 0),
    Sketcher.Constraint("Horizontal", 1),
    Sketcher.Constraint("Vertical", 2),
    Sketcher.Constraint("Horizontal", 3),
    Sketcher.Constraint("Vertical", 4),
    Sketcher.Constraint("Horizontal", 5),
    Sketcher.Constraint("Equal", 5, 0),
    Sketcher.Constraint("Equal", 3, 2),
    Sketcher.Constraint("DistanceX", 1, 2, 1, 1, 3.0),
    Sketcher.Constraint("DistanceX", 3, 2, 3, 1, 46.0),
    Sketcher.Constraint("DistanceX", -1, 1, 0, 2, 1.0),
    Sketcher.Constraint("DistanceY", 0, 2, -1, 1, 2129.0),
])
pad9 = body10.newObject("PartDesign::Pad", "Pad008")
pad9.Profile = sketch10
pad9.Length = 274.5
body11 = doc.addObject("PartDesign::Body", "Body010")
body11.AllowCompound = True

# Sketch on XZ plane
sketch11 = body11.newObject("Sketcher::SketchObject", "Sketch010")
sketch11.AttachmentSupport = (doc.getObject("XZ_Plane010"), [""])
sketch11.MapMode = "FlatFace"
sketch11.AttachmentOffset = App.Placement(V(0, 0, 72.1), App.Rotation())
sketch11.addGeometry([
    Part.LineSegment(V(-135.05, -2073, 0), V(-135.05, -2196.311565, 0)),  # 0
    Part.LineSegment(V(-135.05, -2196.311565, 0), V(-104.95, -2196.311565, 0)),  # 1
    Part.LineSegment(V(-104.95, -2196.311565, 0), V(-104.95, -2073, 0)),  # 2
    Part.LineSegment(V(-104.95, -2073, 0), V(-135.05, -2073, 0)),  # 3
    Part.LineSegment(V(104.95, -2073, 0), V(104.95, -2196.311565, 0)),  # 4
    Part.LineSegment(V(104.95, -2196.311565, 0), V(135.05, -2196.311565, 0)),  # 5
    Part.LineSegment(V(135.05, -2196.311565, 0), V(135.05, -2073, 0)),  # 6
    Part.LineSegment(V(135.05, -2073, 0), V(104.95, -2073, 0)),  # 7
], False)
sketch11.addConstraint([
    Sketcher.Constraint("Coincident", 0, 2, 1, 1),
    Sketcher.Constraint("Coincident", 1, 2, 2, 1),
    Sketcher.Constraint("Coincident", 2, 2, 3, 1),
    Sketcher.Constraint("Coincident", 3, 2, 0, 1),
    Sketcher.Constraint("Coincident", 4, 2, 5, 1),
    Sketcher.Constraint("Coincident", 5, 2, 6, 1),
    Sketcher.Constraint("Coincident", 6, 2, 7, 1),
    Sketcher.Constraint("Coincident", 7, 2, 4, 1),
    Sketcher.Constraint("Vertical", 0),
    Sketcher.Constraint("Horizontal", 1),
    Sketcher.Constraint("Vertical", 2),
    Sketcher.Constraint("Horizontal", 3),
    Sketcher.Constraint("Vertical", 4),
    Sketcher.Constraint("Horizontal", 5),
    Sketcher.Constraint("Vertical", 6),
    Sketcher.Constraint("Horizontal", 7),
    Sketcher.Constraint("Symmetric", 1, 2, 4, 2, -2),
    Sketcher.Constraint("Symmetric", 3, 2, 6, 2, -2),
    Sketcher.Constraint("DistanceX", 1, 1, 1, 2, 30.1),
    Sketcher.Constraint("DistanceY", 2, 2, -1, 1, 2073.0),
    Sketcher.Constraint("DistanceX", 0, 2, 4, 2, 240.0),
    Sketcher.Constraint("DistanceY", 0, 2, 0, 1, 123.311565),
])
pad10 = body11.newObject("PartDesign::Pad", "Pad009")
pad10.Profile = sketch11
pad10.Length = 3
doc.recompute()

body12 = doc.addObject("PartDesign::Body", "Body011")
body12.BaseFeature = body11
boolean3 = body2.newObject("PartDesign::Boolean", "Boolean002")
boolean3.Type = "Cut"
boolean3.addObjects([body12])
doc.recompute()

boolean4 = body3.newObject("PartDesign::Boolean", "Boolean003")
boolean4.Type = "Cut"
boolean4.addObjects([body11])
body13 = doc.addObject("PartDesign::Body", "Body012")

# Sketch on YZ plane
sketch12 = body13.newObject("Sketcher::SketchObject", "Sketch011")
sketch12.AttachmentSupport = (doc.getObject("YZ_Plane012"), [""])
sketch12.MapMode = "FlatFace"
sketch12.addGeometry(Part.Circle(V(-56.1, -2120, 0), V(0, 0, 1), 5), False)
sketch12.addConstraint([
    Sketcher.Constraint("Diameter", 0, 10.0),
    Sketcher.Constraint("DistanceY", 0, 3, -1, 1, 2120.0),
    Sketcher.Constraint("DistanceX", 0, 3, -1, 1, 56.1),
])
pad11 = body13.newObject("PartDesign::Pad", "Pad010")
pad11.Profile = sketch12
pad11.Type = "TwoLengths"
pad11.Length = 2184.612047
pad11.Length2 = 2184.612047
doc.recompute()

body14 = doc.addObject("PartDesign::Body", "Body013")
body14.BaseFeature = body13
boolean5 = body2.newObject("PartDesign::Boolean", "Boolean004")
boolean5.Type = "Cut"
boolean5.addObjects([body14])
doc.recompute()

boolean6 = body3.newObject("PartDesign::Boolean", "Boolean005")
boolean6.Type = "Cut"
boolean6.addObjects([body13])
body15 = doc.addObject("PartDesign::Body", "Body014")

# Sketch on YZ plane
sketch13 = body15.newObject("Sketcher::SketchObject", "Sketch012")
sketch13.AttachmentSupport = (doc.getObject("YZ_Plane014"), [""])
sketch13.MapMode = "FlatFace"
sketch13.AttachmentOffset = App.Placement(V(0, 0, -109), App.Rotation())
sketch13.addGeometry([
    Part.Circle(V(-56.1, -2120, 0), V(0, 0, 1), 25),
    Part.Circle(V(-56.1, -2120, 0), V(0, 0, 1), 5),
], False)
sketch13.addConstraint([
    Sketcher.Constraint("Coincident", 1, 3, 0, 3),
    Sketcher.Constraint("Diameter", 0, 50.0),
    Sketcher.Constraint("Diameter", 1, 10.0),
    Sketcher.Constraint("DistanceY", 0, 3, -1, 1, 2120.0),
    Sketcher.Constraint("DistanceX", 0, 3, -1, 1, 56.1),
])
pad12 = body15.newObject("PartDesign::Pad", "Pad011")
pad12.Profile = sketch13
pad12.Length = 22
pad12.Reversed = True
body16 = doc.addObject("PartDesign::Body", "Body015")

# Sketch on YZ plane
sketch14 = body16.newObject("Sketcher::SketchObject", "Sketch013")
sketch14.AttachmentSupport = (doc.getObject("YZ_Plane015"), [""])
sketch14.MapMode = "FlatFace"
sketch14.AttachmentOffset = App.Placement(V(0, 0, 109), App.Rotation())
sketch14.addGeometry([
    Part.Circle(V(-56.1, -2120, 0), V(0, 0, 1), 25),
    Part.Circle(V(-56.1, -2120, 0), V(0, 0, 1), 5),
], False)
sketch14.addConstraint([
    Sketcher.Constraint("Coincident", 1, 3, 0, 3),
    Sketcher.Constraint("Diameter", 0, 50.0),
    Sketcher.Constraint("Diameter", 1, 10.0),
    Sketcher.Constraint("DistanceY", 0, 3, -1, 1, 2120.0),
    Sketcher.Constraint("DistanceX", 0, 3, -1, 1, 56.1),
])
pad13 = body16.newObject("PartDesign::Pad", "Pad012")
pad13.Profile = sketch14
pad13.Length = 22

doc.recompute()
